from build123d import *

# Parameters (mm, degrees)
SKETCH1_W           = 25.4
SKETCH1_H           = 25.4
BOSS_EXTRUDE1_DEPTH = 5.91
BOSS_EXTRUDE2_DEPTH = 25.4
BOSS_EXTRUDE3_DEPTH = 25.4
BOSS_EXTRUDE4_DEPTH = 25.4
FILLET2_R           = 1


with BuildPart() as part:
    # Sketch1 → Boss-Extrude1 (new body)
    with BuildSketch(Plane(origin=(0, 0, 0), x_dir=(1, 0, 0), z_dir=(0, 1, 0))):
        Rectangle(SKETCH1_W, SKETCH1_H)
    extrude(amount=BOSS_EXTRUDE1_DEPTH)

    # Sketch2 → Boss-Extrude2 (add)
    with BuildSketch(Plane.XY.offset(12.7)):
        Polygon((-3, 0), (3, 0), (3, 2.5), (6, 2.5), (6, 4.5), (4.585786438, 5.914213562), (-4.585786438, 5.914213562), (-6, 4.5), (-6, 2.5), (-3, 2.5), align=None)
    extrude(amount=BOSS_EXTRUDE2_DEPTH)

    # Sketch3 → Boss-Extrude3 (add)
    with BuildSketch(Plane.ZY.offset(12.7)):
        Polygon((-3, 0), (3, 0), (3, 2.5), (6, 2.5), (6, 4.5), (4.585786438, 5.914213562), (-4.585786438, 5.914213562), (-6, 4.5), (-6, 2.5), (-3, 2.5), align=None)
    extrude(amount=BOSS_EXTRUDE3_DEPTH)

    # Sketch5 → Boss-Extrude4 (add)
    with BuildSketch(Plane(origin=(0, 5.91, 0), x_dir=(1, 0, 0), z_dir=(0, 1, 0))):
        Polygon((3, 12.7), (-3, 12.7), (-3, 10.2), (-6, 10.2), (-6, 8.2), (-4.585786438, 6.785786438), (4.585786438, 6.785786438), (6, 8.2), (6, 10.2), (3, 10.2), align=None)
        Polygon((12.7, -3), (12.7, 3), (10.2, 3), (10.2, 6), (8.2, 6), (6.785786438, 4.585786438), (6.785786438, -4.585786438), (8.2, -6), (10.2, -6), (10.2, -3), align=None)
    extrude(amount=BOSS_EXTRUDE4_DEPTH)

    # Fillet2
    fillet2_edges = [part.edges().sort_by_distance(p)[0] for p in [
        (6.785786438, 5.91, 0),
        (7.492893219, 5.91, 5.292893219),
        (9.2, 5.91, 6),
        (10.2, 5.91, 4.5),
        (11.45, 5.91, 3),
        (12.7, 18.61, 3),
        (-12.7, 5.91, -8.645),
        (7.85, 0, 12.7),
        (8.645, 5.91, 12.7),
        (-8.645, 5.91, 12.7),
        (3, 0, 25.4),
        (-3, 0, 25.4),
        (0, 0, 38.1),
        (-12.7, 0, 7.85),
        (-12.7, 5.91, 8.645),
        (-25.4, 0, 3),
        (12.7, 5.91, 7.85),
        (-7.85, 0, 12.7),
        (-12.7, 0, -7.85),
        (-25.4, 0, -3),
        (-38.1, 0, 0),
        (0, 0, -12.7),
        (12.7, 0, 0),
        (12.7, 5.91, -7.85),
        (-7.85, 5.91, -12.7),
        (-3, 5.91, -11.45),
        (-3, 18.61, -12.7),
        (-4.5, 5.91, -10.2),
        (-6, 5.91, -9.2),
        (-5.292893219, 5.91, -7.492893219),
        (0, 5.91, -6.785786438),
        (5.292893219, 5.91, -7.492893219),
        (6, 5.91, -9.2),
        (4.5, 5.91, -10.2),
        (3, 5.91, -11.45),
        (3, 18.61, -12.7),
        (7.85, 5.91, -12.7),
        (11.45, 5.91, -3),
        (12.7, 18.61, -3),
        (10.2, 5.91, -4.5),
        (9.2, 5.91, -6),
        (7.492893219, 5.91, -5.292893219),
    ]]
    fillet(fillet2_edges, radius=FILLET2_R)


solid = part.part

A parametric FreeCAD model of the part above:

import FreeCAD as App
import Part
import Sketcher
Q = App.Units.Quantity


def edges_at(feature, points):
    """Names of the edges that pass closest to the given points."""
    edges = feature.Shape.Edges
    near = lambda p: min(range(len(edges)), key=lambda i: edges[i].distToShape(Part.Vertex(*p))[0])
    return sorted({f"Edge{near(p) + 1}" for p in points})


def add_polygon(sketch, points):
    """Adds a closed chain of lines whose ends are joined by coincident constraints."""
    first, n = sketch.GeometryCount, len(points)
    for a, b in zip(points, points[1:] + points[:1]):
        sketch.addGeometry(Part.LineSegment(App.Vector(*a, 0), App.Vector(*b, 0)), False)
    for i in range(n):
        sketch.addConstraint(Sketcher.Constraint("Coincident", first + i, 2, first + (i + 1) % n, 1))

doc = App.newDocument("Part")
params = doc.addObject("Spreadsheet::Sheet", "Params")
for row, (alias, value) in enumerate([
    ("sketch1_width", "25.4 mm"),
    ("pad1_length", "5.91 mm"),
    ("sketch2_width", "6 mm"),
    ("sketch2_width2", "3 mm"),
    ("sketch2_height", "2 mm"),
    ("sketch2_length", "2 mm"),
    ("sketch2_height2", "2.5 mm"),
    ("pad2_length", "25.4 mm"),
    ("sketch3_width", "2 mm"),
    ("sketch3_height", "6 mm"),
    ("sketch3_height2", "3 mm"),
    ("sketch3_length", "2 mm"),
    ("sketch3_width2", "2.5 mm"),
    ("pad3_length", "25.4 mm"),
    ("sketch4_width", "6 mm"),
    ("sketch4_width2", "3 mm"),
    ("sketch4_width3", "2 mm"),
    ("sketch4_length", "2 mm"),
    ("sketch4_width4", "2.5 mm"),
    ("pad4_length", "25.4 mm"),
    ("fillet_radius", "1 mm"),
], start=1):
    params.set(f"A{row}", alias)
    params.set(f"B{row}", "=" + value)
    params.setAlias(f"B{row}", alias)

body = doc.addObject("PartDesign::Body", "Body")

sketch1 = body.newObject("Sketcher::SketchObject", "Sketch")
sketch1.AttachmentSupport = (doc.getObject("XZ_Plane"), [""])
sketch1.MapMode = "FlatFace"
add_polygon(sketch1, [(-13, -13), (-13, 13), (13, 13), (13, -13)])
sketch1.addConstraint([
    Sketcher.Constraint("Vertical", 0),
    Sketcher.Constraint("Horizontal", 1),
    Sketcher.Constraint("Vertical", 2),
    Sketcher.Constraint("Horizontal", 3),
    Sketcher.Constraint("Symmetric", 0, 2, 2, 2, -1, 1),
    Sketcher.Constraint("Equal", 3, 0),
    Sketcher.Constraint("DistanceX", 1, 1, 1, 2, Q("25.4 mm")),
])
sketch1.setExpression("Constraints[10]", "Params.sketch1_width")
pad1 = body.newObject("PartDesign::Pad", "Pad")
pad1.Profile = sketch1
pad1.setExpression("Length", "Params.pad1_length")
pad1.Reversed = True

sketch2 = body.newObject("Sketcher::SketchObject", "Sketch001")
sketch2.AttachmentSupport = (doc.getObject("XY_Plane"), [""])
sketch2.MapMode = "FlatFace"
sketch2.AttachmentOffset = App.Placement(App.Vector(0, 0, 12.7), App.Rotation())
add_polygon(sketch2, [(-3, 0), (3, 0), (3, 2.5), (6, 2.5), (6, 4.5), (4.6, 5.9), (-4.6, 5.9), (-6, 4.5), (-6, 2.5), (-3, 2.5)])
sketch2.addConstraint([
    Sketcher.Constraint("Horizontal", 0),
    Sketcher.Constraint("Vertical", 1),
    Sketcher.Constraint("Horizontal", 2),
    Sketcher.Constraint("Vertical", 3),
    Sketcher.Constraint("Horizontal", 5),
    Sketcher.Constraint("Vertical", 7),
    Sketcher.Constraint("Horizontal", 8),
    Sketcher.Constraint("Vertical", 9),
    Sketcher.Constraint("Symmetric", 0, 2, 9, 2, -1, 1),
    Sketcher.Constraint("Symmetric", 3, 2, 6, 2, -2),
    Sketcher.Constraint("Perpendicular", 4, 6),
    Sketcher.Constraint("Horizontal", 2, 2, 7, 2),
    Sketcher.Constraint("Equal", 4, 6),
    Sketcher.Constraint("DistanceX", 0, 1, 0, 2, Q("6 mm")),
    Sketcher.Constraint("DistanceX", 2, 1, 2, 2, Q("3 mm")),
    Sketcher.Constraint("DistanceY", 3, 1, 3, 2, Q("2 mm")),
    Sketcher.Constraint("Distance", 4, Q("2 mm")),
    Sketcher.Constraint("DistanceY", 1, 1, 1, 2, Q("2.5 mm")),
])
sketch2.setExpression("Constraints[23]", "Params.sketch2_width")
sketch2.setExpression("Constraints[24]", "Params.sketch2_width2")
sketch2.setExpression("Constraints[25]", "Params.sketch2_height")
sketch2.setExpression("Constraints[26]", "Params.sketch2_length")
sketch2.setExpression("Constraints[27]", "Params.sketch2_height2")
pad2 = body.newObject("PartDesign::Pad", "Pad001")
pad2.Profile = sketch2
pad2.setExpression("Length", "Params.pad2_length")

sketch3 = body.newObject("Sketcher::SketchObject", "Sketch002")
sketch3.AttachmentSupport = (doc.getObject("YZ_Plane"), [""])
sketch3.MapMode = "FlatFace"
sketch3.AttachmentOffset = App.Placement(App.Vector(0, 0, -12.7), App.Rotation())
add_polygon(sketch3, [(0, -3), (0, 3), (2.5, 3), (2.5, 6), (4.5, 6), (5.9, 4.6), (5.9, -4.6), (4.5, -6), (2.5, -6), (2.5, -3)])
sketch3.addConstraint([
    Sketcher.Constraint("Vertical", 0),
    Sketcher.Constraint("Horizontal", 1),
    Sketcher.Constraint("Vertical", 2),
    Sketcher.Constraint("Horizontal", 3),
    Sketcher.Constraint("Vertical", 5),
    Sketcher.Constraint("Horizontal", 7),
    Sketcher.Constraint("Vertical", 8),
    Sketcher.Constraint("Horizontal", 9),
    Sketcher.Constraint("Symmetric", 0, 2, 9, 2, -1, 1),
    Sketcher.Constraint("Symmetric", 3, 2, 6, 2, -1),
    Sketcher.Constraint("Perpendicular", 4, 6),
    Sketcher.Constraint("Vertical", 2, 2, 7, 2),
    Sketcher.Constraint("Equal", 4, 6),
    Sketcher.Constraint("DistanceX", 3, 1, 3, 2, Q("2 mm")),
    Sketcher.Constraint("DistanceY", 0, 1, 0, 2, Q("6 mm")),
    Sketcher.Constraint("DistanceY", 2, 1, 2, 2, Q("3 mm")),
    Sketcher.Constraint("Distance", 4, Q("2 mm")),
    Sketcher.Constraint("DistanceX", 1, 1, 1, 2, Q("2.5 mm")),
])
sketch3.setExpression("Constraints[23]", "Params.sketch3_width")
sketch3.setExpression("Constraints[24]", "Params.sketch3_height")
sketch3.setExpression("Constraints[25]", "Params.sketch3_height2")
sketch3.setExpression("Constraints[26]", "Params.sketch3_length")
sketch3.setExpression("Constraints[27]", "Params.sketch3_width2")
pad3 = body.newObject("PartDesign::Pad", "Pad002")
pad3.Profile = sketch3
pad3.setExpression("Length", "Params.pad3_length")
pad3.Reversed = True

sketch4 = body.newObject("Sketcher::SketchObject", "Sketch003")
sketch4.AttachmentSupport = (doc.getObject("XZ_Plane"), [""])
sketch4.MapMode = "FlatFace"
sketch4.AttachmentOffset = App.Placement(App.Vector(0, 0, -5.91), App.Rotation())
add_polygon(sketch4, [(3, -12.7), (-3, -12.7), (-3, -10.2), (-6, -10.2), (-6, -8.2), (-4.6, -6.8), (4.6, -6.8), (6, -8.2), (6, -10.2), (3, -10.2)])
add_polygon(sketch4, [(12.7, 3), (12.7, -3), (10.2, -3), (10.2, -6), (8.2, -6), (6.8, -4.6), (6.8, 4.6), (8.2, 6), (10.2, 6), (10.2, 3)])
sketch4.addConstraint([
    Sketcher.Constraint("Horizontal", 0),
    Sketcher.Constraint("Vertical", 1),
    Sketcher.Constraint("Horizontal", 2),
    Sketcher.Constraint("Vertical", 3),
    Sketcher.Constraint("Horizontal", 5),
    Sketcher.Constraint("Vertical", 7),
    Sketcher.Constraint("Horizontal", 8),
    Sketcher.Constraint("Vertical", 9),
    Sketcher.Constraint("Vertical", 10),
    Sketcher.Constraint("Horizontal", 11),
    Sketcher.Constraint("Vertical", 12),
    Sketcher.Constraint("Horizontal", 13),
    Sketcher.Constraint("Vertical", 15),
    Sketcher.Constraint("Horizontal", 17),
    Sketcher.Constraint("Vertical", 18),
    Sketcher.Constraint("Horizontal", 19),
    Sketcher.Constraint("Symmetric", 3, 2, 6, 2, -2),
    Sketcher.Constraint("Symmetric", 1, 2, 8, 2, -2),
    Sketcher.Constraint("Symmetric", 13, 2, 16, 2, -1),
    Sketcher.Constraint("Symmetric", 11, 2, 18, 2, -1),
    Sketcher.Constraint("Perpendicular", 4, 6),
    Sketcher.Constraint("Parallel", 6, 14),
    Sketcher.Constraint("Perpendicular", 14, 16),
    Sketcher.Constraint("Equal", 19, 1),
    Sketcher.Constraint("Equal", 17, 3),
    Sketcher.Constraint("Equal", 0, 10),
    Sketcher.Constraint("Equal", 8, 12),
    Sketcher.Constraint("Equal", 5, 15),
    Sketcher.Constraint("Equal", 4, 6),
    Sketcher.Constraint("DistanceX", 0, 2, 0, 1, Q("6 mm")),
    Sketcher.Constraint("DistanceX", 2, 2, 2, 1, Q("3 mm")),
    Sketcher.Constraint("DistanceX", 13, 2, 13, 1, Q("2 mm")),
    Sketcher.Constraint("Distance", 4, Q("2 mm")),
    Sketcher.Constraint("DistanceX", 11, 2, 11, 1, Q("2.5 mm")),
    Sketcher.Constraint("DistanceY", 0, 2, -1, 1, Q("12.7 mm")),
    Sketcher.Constraint("DistanceX", -1, 1, 10, 2, Q("12.7 mm")),
])
sketch4.setExpression("Constraints[49]", "Params.sketch4_width")
sketch4.setExpression("Constraints[50]", "Params.sketch4_width2")
sketch4.setExpression("Constraints[51]", "Params.sketch4_width3")
sketch4.setExpression("Constraints[52]", "Params.sketch4_length")
sketch4.setExpression("Constraints[53]", "Params.sketch4_width4")
pad4 = body.newObject("PartDesign::Pad", "Pad003")
pad4.Profile = sketch4
pad4.setExpression("Length", "Params.pad4_length")
pad4.Reversed = True
doc.recompute()

fillet = body.newObject("PartDesign::Fillet", "Fillet")
fillet.Base = (pad4, edges_at(pad4, [
    (6.786, 5.91, 0),
    (7.493, 5.91, 5.293),
    (9.2, 5.91, 6),
    (10.2, 5.91, 4.5),
    (11.45, 5.91, 3),
    (12.7, 18.61, 3),
    (-12.7, 5.91, -8.645),
    (7.85, 0, 12.7),
    (8.645, 5.91, 12.7),
    (-8.645, 5.91, 12.7),
    (3, 0, 25.4),
    (-3, 0, 25.4),
    (0, 0, 38.1),
    (-12.7, 0, 7.85),
    (-12.7, 5.91, 8.645),
    (-25.4, 0, 3),
    (12.7, 5.91, 7.85),
    (-7.85, 0, 12.7),
    (-12.7, 0, -7.85),
    (-25.4, 0, -3),
    (-38.1, 0, 0),
    (0, 0, -12.7),
    (12.7, 0, 0),
    (12.7, 5.91, -7.85),
    (-7.85, 5.91, -12.7),
    (-3, 5.91, -11.45),
    (-3, 18.61, -12.7),
    (-4.5, 5.91, -10.2),
    (-6, 5.91, -9.2),
    (-5.293, 5.91, -7.493),
    (0, 5.91, -6.786),
    (5.293, 5.91, -7.493),
    (6, 5.91, -9.2),
    (4.5, 5.91, -10.2),
    (3, 5.91, -11.45),
    (3, 18.61, -12.7),
    (7.85, 5.91, -12.7),
    (11.45, 5.91, -3),
    (12.7, 18.61, -3),
    (10.2, 5.91, -4.5),
    (9.2, 5.91, -6),
    (7.493, 5.91, -5.293),
]))
fillet.setExpression("Radius", "Params.fillet_radius")

doc.recompute()
